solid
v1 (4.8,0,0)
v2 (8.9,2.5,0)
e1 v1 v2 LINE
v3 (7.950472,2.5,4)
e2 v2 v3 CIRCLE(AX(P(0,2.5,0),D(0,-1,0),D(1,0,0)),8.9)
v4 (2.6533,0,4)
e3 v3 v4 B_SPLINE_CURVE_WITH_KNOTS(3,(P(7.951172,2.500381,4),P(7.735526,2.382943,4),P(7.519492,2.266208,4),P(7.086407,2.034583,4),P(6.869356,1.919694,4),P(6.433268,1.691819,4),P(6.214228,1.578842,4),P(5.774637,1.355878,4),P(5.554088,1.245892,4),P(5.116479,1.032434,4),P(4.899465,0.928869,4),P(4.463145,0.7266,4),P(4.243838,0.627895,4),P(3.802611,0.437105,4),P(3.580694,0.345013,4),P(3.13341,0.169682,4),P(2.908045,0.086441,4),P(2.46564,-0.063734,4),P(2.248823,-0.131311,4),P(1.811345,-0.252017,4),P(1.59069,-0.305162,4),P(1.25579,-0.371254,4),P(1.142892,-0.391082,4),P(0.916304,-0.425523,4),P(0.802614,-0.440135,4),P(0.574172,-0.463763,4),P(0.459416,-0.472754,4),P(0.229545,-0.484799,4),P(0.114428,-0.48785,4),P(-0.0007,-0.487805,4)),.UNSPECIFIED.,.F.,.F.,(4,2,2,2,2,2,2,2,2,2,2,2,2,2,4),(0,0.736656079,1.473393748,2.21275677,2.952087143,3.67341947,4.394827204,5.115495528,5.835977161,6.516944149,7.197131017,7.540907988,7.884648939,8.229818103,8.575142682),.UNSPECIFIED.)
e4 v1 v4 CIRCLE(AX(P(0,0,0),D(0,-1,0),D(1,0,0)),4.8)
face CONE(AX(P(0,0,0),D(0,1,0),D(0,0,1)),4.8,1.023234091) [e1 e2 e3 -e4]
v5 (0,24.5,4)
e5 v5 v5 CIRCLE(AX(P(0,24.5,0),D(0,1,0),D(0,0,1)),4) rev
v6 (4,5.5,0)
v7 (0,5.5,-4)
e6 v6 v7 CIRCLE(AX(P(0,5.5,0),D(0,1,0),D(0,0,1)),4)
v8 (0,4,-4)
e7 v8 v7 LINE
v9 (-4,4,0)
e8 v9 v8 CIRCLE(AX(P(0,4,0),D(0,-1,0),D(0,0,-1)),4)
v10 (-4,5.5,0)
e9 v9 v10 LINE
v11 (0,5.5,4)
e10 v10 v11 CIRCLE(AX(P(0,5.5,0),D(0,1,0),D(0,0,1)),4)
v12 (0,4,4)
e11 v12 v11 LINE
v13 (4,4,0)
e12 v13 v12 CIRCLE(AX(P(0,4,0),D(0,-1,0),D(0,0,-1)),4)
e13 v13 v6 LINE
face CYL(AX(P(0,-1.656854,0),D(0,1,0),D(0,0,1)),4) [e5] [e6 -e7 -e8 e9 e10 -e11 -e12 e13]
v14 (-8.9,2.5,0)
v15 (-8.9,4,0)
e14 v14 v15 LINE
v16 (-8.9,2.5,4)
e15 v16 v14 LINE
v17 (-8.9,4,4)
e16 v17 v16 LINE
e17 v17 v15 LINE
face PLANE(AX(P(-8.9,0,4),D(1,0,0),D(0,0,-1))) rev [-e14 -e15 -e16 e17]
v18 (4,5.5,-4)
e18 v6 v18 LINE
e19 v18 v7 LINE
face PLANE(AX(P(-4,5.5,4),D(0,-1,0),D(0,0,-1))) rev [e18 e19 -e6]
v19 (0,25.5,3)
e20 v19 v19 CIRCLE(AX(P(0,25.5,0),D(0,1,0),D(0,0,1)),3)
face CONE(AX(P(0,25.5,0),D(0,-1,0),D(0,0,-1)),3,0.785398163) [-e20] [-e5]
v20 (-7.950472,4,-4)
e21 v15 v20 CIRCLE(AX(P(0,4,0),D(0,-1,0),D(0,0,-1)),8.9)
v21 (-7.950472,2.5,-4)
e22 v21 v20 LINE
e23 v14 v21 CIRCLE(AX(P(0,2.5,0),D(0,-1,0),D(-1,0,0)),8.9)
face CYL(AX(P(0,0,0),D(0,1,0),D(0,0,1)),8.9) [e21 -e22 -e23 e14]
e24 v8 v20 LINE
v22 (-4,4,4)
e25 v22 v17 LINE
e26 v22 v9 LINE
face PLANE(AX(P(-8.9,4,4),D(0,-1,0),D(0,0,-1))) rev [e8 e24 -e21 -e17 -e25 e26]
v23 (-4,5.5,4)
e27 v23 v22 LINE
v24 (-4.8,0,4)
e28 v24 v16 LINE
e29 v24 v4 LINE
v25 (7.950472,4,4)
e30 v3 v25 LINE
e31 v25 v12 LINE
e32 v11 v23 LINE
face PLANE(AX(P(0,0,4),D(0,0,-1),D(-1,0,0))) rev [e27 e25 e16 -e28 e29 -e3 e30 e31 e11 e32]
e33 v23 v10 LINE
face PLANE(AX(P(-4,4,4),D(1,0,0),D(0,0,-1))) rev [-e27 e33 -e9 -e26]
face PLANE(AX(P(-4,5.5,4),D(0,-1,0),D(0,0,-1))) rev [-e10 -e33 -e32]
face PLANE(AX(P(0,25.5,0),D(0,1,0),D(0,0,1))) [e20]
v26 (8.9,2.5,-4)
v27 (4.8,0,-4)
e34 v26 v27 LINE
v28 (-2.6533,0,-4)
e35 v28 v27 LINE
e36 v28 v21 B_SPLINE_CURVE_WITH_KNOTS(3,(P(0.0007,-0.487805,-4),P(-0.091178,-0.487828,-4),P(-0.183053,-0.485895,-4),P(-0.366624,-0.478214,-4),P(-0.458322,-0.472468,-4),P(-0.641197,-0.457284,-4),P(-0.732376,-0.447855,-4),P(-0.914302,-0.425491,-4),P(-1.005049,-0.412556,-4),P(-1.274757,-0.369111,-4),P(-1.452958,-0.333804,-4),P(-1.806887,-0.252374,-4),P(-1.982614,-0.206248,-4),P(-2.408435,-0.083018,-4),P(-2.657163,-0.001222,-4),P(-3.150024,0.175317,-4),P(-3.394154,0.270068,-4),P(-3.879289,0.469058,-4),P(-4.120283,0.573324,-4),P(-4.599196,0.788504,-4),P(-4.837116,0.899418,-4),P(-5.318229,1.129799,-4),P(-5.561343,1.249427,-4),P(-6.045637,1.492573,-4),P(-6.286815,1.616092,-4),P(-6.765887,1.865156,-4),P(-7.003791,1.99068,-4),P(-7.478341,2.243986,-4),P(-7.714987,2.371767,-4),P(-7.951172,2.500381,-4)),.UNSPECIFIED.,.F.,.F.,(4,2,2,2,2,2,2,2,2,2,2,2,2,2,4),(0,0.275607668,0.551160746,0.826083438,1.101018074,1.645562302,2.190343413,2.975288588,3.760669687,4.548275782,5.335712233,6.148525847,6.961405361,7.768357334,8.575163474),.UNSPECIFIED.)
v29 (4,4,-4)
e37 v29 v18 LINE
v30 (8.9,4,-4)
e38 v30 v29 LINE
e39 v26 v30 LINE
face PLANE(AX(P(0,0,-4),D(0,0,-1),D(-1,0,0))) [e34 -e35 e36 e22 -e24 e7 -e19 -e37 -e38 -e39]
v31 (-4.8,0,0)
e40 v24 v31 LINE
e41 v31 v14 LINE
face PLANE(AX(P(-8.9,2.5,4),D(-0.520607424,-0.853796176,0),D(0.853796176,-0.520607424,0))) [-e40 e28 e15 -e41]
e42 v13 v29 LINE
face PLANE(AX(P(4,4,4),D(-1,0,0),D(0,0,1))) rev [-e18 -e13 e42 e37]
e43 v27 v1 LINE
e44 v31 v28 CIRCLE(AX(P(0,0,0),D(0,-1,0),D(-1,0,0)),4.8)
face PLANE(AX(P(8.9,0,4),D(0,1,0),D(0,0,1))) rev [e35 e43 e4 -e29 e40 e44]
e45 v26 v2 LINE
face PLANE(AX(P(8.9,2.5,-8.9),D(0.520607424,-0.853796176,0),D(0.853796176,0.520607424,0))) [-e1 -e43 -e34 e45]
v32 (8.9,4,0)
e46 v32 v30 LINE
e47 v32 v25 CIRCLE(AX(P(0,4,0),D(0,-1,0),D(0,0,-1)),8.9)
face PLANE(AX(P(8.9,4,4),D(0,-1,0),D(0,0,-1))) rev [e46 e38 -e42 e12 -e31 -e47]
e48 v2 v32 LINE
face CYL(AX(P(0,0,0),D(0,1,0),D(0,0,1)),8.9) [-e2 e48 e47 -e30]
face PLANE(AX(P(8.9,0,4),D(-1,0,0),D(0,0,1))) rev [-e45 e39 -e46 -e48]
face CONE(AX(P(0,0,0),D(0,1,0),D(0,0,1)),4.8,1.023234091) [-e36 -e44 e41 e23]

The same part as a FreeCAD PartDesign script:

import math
import FreeCAD as App
import Part
import Sketcher
from FreeCAD import Vector
Q = App.Units.Quantity


def edges_at(feature, points):
    """Names of the edges that pass closest to the given points."""
    edges = feature.Shape.Edges
    near = lambda p: min(range(len(edges)), key=lambda i: edges[i].distToShape(Part.Vertex(*p))[0])
    return sorted({f"Edge{near(p) + 1}" for p in points})


def add_polygon(sketch, points):
    """Adds a closed chain of lines whose ends are joined by coincident constraints."""
    first, n = sketch.GeometryCount, len(points)
    for a, b in zip(points, points[1:] + points[:1]):
        sketch.addGeometry(Part.LineSegment(App.Vector(*a, 0), App.Vector(*b, 0)), False)
    for i in range(n):
        sketch.addConstraint(Sketcher.Constraint("Coincident", first + i, 2, first + (i + 1) % n, 1))

doc = App.newDocument("Part")
body = doc.addObject("PartDesign::Body", "Body")

# Sketch on XY plane
sketch1 = doc.addObject("Sketcher::SketchObject", "Sketch")
body.addObject(sketch1)
sketch1.AttachmentSupport = (doc.XY_Plane, [""])
sketch1.MapMode = "FlatFace"
add_polygon(sketch1, [(-8.9, 0), (8.9, 0), (8.9, 4), (4, 4), (4, 5.5), (-4, 5.5), (-4, 4), (-8.9, 4)])  # lines 0-7
sketch1.addConstraint([
    Sketcher.Constraint("Horizontal", 0),
    Sketcher.Constraint("Vertical", 1),
    Sketcher.Constraint("Horizontal", 2),
    Sketcher.Constraint("Vertical", 3),
    Sketcher.Constraint("Horizontal", 4),
    Sketcher.Constraint("Vertical", 5),
    Sketcher.Constraint("Horizontal", 6),
    Sketcher.Constraint("Vertical", 7),
    Sketcher.Constraint("Symmetric", 0, 2, 7, 2, -1, 1),
    Sketcher.Constraint("Symmetric", 2, 2, 5, 2, -2),
    Sketcher.Constraint("DistanceX", 4, 2, 4, 1, Q("8 mm")),
    Sketcher.Constraint("DistanceY", 1, 1, 1, 2, Q("4 mm")),
    Sketcher.Constraint("DistanceX", 0, 1, 0, 2, Q("17.8 mm")),
    Sketcher.Constraint("DistanceY", 3, 1, 3, 2, Q("1.5 mm")),
])
pad1 = doc.addObject("PartDesign::Pad", "Pad")
body.addObject(pad1)
pad1.Profile = sketch1
pad1.Length = 8
pad1.Midplane = True

# Sketch on XZ plane
sketch2 = doc.addObject("Sketcher::SketchObject", "Sketch001")
body.addObject(sketch2)
sketch2.AttachmentSupport = (doc.XZ_Plane, [""])
sketch2.MapMode = "FlatFace"
sketch2.AttachmentOffset = App.Placement(Vector(0, 0, -5.5), App.Rotation())
sketch2.addGeometry([
    Part.LineSegment(Vector(-4, -4, 0), Vector(-4, 0, 0)),  # 0
    Part.ArcOfCircle(Part.Circle(Vector(0, 0, 0), Vector(0, 0, 1), 4), math.radians(180), math.radians(270)),  # 1
    Part.LineSegment(Vector(0, -4, 0), Vector(-4, -4, 0)),  # 2
    Part.LineSegment(Vector(0, 4, 0), Vector(4, 4, 0)),  # 3
    Part.LineSegment(Vector(4, 4, 0), Vector(4, 0, 0)),  # 4
    Part.ArcOfCircle(Part.Circle(Vector(0, 0, 0), Vector(0, 0, 1), 4), math.radians(0), math.radians(90)),  # 5
], False)
sketch2.addConstraint([
    Sketcher.Constraint("Tangent", 0, 2, 1, 1),
    Sketcher.Constraint("Tangent", 1, 2, 2, 1),
    Sketcher.Constraint("Coincident", 2, 2, 0, 1),
    Sketcher.Constraint("Coincident", 3, 2, 4, 1),
    Sketcher.Constraint("Tangent", 4, 2, 5, 1),
    Sketcher.Constraint("Tangent", 5, 2, 3, 1),
    Sketcher.Constraint("Vertical", 0),
    Sketcher.Constraint("Horizontal", 2),
    Sketcher.Constraint("Horizontal", 3),
    Sketcher.Constraint("Vertical", 4),
    Sketcher.Constraint("Coincident", 1, 3, -1, 1),
    Sketcher.Constraint("Coincident", 5, 3, -1, 1),
    Sketcher.Constraint("Equal", 1, 5),
    Sketcher.Constraint("Radius", 1, Q("4 mm")),
])
pocket1 = doc.addObject("PartDesign::Pocket", "Pocket")
body.addObject(pocket1)
pocket1.Profile = sketch2
pocket1.Length = 1.5
pocket1.Reversed = True

# Sketch on XZ plane
sketch3 = doc.addObject("Sketcher::SketchObject", "Sketch002")
body.addObject(sketch3)
sketch3.AttachmentSupport = (doc.XZ_Plane, [""])
sketch3.MapMode = "FlatFace"
sketch3.AttachmentOffset = App.Placement(Vector(0, 0, -5.5), App.Rotation())
sketch3.addGeometry(Part.Circle(Vector(0, 0, 0), Vector(0, 0, 1), 4), False)
sketch3.addConstraint([
    Sketcher.Constraint("Coincident", 0, 3, -1, 1),
    Sketcher.Constraint("Diameter", 0, Q("8 mm")),
])
pad2 = doc.addObject("PartDesign::Pad", "Pad001")
body.addObject(pad2)
pad2.Profile = sketch3
pad2.Length = 20
pad2.Reversed = True

# Sketch on XZ plane
sketch4 = doc.addObject("Sketcher::SketchObject", "Sketch003")
body.addObject(sketch4)
sketch4.AttachmentSupport = (doc.XZ_Plane, [""])
sketch4.MapMode = "FlatFace"
sketch4.AttachmentOffset = App.Placement(Vector(0, 0, -4), App.Rotation())
sketch4.addGeometry([
    Part.LineSegment(Vector(-8, -4, 0), Vector(-8.9, -4, 0)),  # 0
    Part.LineSegment(Vector(-8.9, -4, 0), Vector(-8.9, 0, 0)),  # 1
    Part.ArcOfCircle(Part.Circle(Vector(0, 0, 0), Vector(0, 0, 1), 8.9), math.radians(180), math.radians(207)),  # 2
    Part.LineSegment(Vector(8, 4, 0), Vector(8.9, 4, 0)),  # 3
    Part.LineSegment(Vector(8.9, 4, 0), Vector(8.9, 0, 0)),  # 4
    Part.ArcOfCircle(Part.Circle(Vector(0, 0, 0), Vector(0, 0, 1), 8.9), math.radians(0), math.radians(27)),  # 5
], False)
sketch4.addConstraint([
    Sketcher.Constraint("Coincident", 0, 2, 1, 1),
    Sketcher.Constraint("Tangent", 1, 2, 2, 1),
    Sketcher.Constraint("Coincident", 2, 2, 0, 1),
    Sketcher.Constraint("Coincident", 3, 2, 4, 1),
    Sketcher.Constraint("Tangent", 4, 2, 5, 1),
    Sketcher.Constraint("Coincident", 5, 2, 3, 1),
    Sketcher.Constraint("Horizontal", 0),
    Sketcher.Constraint("Vertical", 1),
    Sketcher.Constraint("Horizontal", 3),
    Sketcher.Constraint("Vertical", 4),
    Sketcher.Constraint("Coincident", 2, 3, -1, 1),
    Sketcher.Constraint("Coincident", 5, 3, -1, 1),
    Sketcher.Constraint("Equal", 2, 5),
    Sketcher.Constraint("Equal", 0, 3),
    Sketcher.Constraint("Radius", 2, Q("8.9 mm")),
    Sketcher.Constraint("DistanceY", 1, 1, 1, 2, Q("4 mm")),
])
pocket2 = doc.addObject("PartDesign::Pocket", "Pocket001")
body.addObject(pocket2)
pocket2.Profile = sketch4
pocket2.Type = "ThroughAll"
pocket2.Reversed = True

# Sketch on XY plane
sketch5 = doc.addObject("Sketcher::SketchObject", "Sketch004")
body.addObject(sketch5)
sketch5.AttachmentSupport = (doc.XY_Plane, [""])
sketch5.MapMode = "FlatFace"
sketch5.AttachmentOffset = App.Placement(Vector(0, 0, 4), App.Rotation())
add_polygon(sketch5, [(-4.8, 0), (-8.9, 2.5), (-8.9, 0)])  # lines 0-2
sketch5.addConstraint([
    Sketcher.Constraint("Vertical", 1),
    Sketcher.Constraint("Horizontal", 2),
    Sketcher.Constraint("PointOnObject", 1, 2, -1),
    Sketcher.Constraint("DistanceX", 2, 1, 2, 2, Q("4.1 mm")),
    Sketcher.Constraint("DistanceY", 1, 2, 1, 1, Q("2.5 mm")),
    Sketcher.Constraint("DistanceX", 0, 2, -1, 1, Q("8.9 mm")),
])

# Sketch on XZ plane
sketch6 = doc.addObject("Sketcher::SketchObject", "Sketch005")
body.addObject(sketch6)
sketch6.AttachmentSupport = (doc.XZ_Plane, [""])
sketch6.MapMode = "FlatFace"
sketch6.addGeometry([
    Part.LineSegment(Vector(0, -9, 0), Vector(9, -9, 0)),  # 0
    Part.LineSegment(Vector(9, -9, 0), Vector(9, 0, 0)),  # 1
    Part.ArcOfCircle(Part.Circle(Vector(0, 0, 0), Vector(0, 0, 1), 9), math.radians(0), math.radians(90)),  # 2
    Part.LineSegment(Vector(0, 9, 0), Vector(-9, 9, 0)),  # 3
    Part.LineSegment(Vector(-9, 9, 0), Vector(-9, 0, 0)),  # 4
    Part.ArcOfCircle(Part.Circle(Vector(0, 0, 0), Vector(0, 0, 1), 9), math.radians(180), math.radians(270)),  # 5
], False)
sketch6.addConstraint([
    Sketcher.Constraint("Coincident", 0, 2, 1, 1),
    Sketcher.Constraint("Tangent", 1, 2, 2, 1),
    Sketcher.Constraint("Tangent", 2, 2, 3, 1),
    Sketcher.Constraint("Coincident", 3, 2, 4, 1),
    Sketcher.Constraint("Tangent", 4, 2, 5, 1),
    Sketcher.Constraint("Tangent", 5, 2, 0, 1),
    Sketcher.Constraint("Horizontal", 0),
    Sketcher.Constraint("Vertical", 1),
    Sketcher.Constraint("Horizontal", 3),
    Sketcher.Constraint("Vertical", 4),
    Sketcher.Constraint("Coincident", 2, 3, -1, 1),
    Sketcher.Constraint("Coincident", 5, 3, -1, 1),
    Sketcher.Constraint("Equal", 2, 5),
    Sketcher.Constraint("Radius", 2, Q("8.9 mm")),
])
doc.recompute()

subtractivepipe = doc.addObject("PartDesign::SubtractivePipe", "SubtractivePipe")
body.addObject(subtractivepipe)
subtractivepipe.Profile = sketch5
subtractivepipe.Spine = (sketch6, ["Edge1", "Edge2", "Edge3", "Edge4", "Edge5", "Edge6"])
subtractivepipe.Transition = "Right corner"
doc.recompute()

chamfer = doc.addObject("PartDesign::Chamfer", "Chamfer")
body.addObject(chamfer)
chamfer.Base = (subtractivepipe, edges_at(subtractivepipe, [(0, 25.5, -4)]))
chamfer.Size = 1

doc.recompute()
